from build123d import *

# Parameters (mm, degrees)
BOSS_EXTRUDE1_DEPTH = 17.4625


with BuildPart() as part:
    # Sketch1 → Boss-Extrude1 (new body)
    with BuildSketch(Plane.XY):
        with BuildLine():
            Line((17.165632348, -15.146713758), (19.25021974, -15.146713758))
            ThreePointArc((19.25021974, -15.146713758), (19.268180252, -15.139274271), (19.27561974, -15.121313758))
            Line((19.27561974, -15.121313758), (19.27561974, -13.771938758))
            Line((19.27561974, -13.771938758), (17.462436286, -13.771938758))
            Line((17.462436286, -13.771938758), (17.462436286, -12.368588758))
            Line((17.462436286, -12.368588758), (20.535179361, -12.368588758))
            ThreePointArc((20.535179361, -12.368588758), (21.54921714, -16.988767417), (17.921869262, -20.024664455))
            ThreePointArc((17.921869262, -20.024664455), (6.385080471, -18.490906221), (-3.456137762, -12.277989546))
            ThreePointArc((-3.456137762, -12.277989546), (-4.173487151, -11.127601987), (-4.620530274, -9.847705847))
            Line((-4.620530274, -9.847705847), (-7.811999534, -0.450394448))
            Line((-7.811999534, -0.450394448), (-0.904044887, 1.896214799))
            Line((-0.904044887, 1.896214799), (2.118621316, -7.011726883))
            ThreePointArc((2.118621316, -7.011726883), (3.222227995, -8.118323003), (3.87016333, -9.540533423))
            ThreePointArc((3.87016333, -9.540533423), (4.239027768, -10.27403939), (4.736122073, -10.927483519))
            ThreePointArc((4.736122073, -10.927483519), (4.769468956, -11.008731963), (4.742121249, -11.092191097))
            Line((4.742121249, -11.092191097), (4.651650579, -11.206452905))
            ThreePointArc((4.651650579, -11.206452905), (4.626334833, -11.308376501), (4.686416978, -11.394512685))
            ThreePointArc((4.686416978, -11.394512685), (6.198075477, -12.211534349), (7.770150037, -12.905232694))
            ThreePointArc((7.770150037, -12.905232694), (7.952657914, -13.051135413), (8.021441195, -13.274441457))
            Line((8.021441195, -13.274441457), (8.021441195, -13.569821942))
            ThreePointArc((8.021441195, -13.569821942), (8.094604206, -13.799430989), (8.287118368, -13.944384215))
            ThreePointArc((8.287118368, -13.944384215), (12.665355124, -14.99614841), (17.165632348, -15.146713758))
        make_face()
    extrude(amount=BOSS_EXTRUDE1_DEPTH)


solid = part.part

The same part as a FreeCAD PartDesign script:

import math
import FreeCAD as App
import Part
import Sketcher

V = App.Vector
Q = App.Units.Quantity

doc = App.newDocument("Part")
body = doc.addObject("PartDesign::Body", "Body")

# Sketch on XY plane
sketch1 = body.newObject("Sketcher::SketchObject", "Sketch")
sketch1.AttachmentSupport = (doc.getObject("XY_Plane"), [""])
sketch1.MapMode = "FlatFace"
sketch1.addGeometry([
    Part.LineSegment(V(19.25022, -15.146714, 0), V(17.165632, -15.146714, 0)),  # 0
    Part.ArcOfCircle(Part.Circle(V(15.657171, 7.096692, 0), V(0, 0, 1), 22.294496), math.radians(-109.303813), math.radians(-86.120362)),  # 1
    Part.ArcOfCircle(Part.Circle(V(8.418316, -13.569822, 0), V(0, 0, 1), 0.396875), math.radians(180), math.radians(250.696187)),  # 2
    Part.LineSegment(V(8.021441, -13.569822, 0), V(8.021441, -13.274441, 0)),  # 3
    Part.ArcOfCircle(Part.Circle(V(7.624566, -13.274441, 0), V(0, 0, 1), 0.396875), math.radians(0), math.radians(68.480034)),  # 4
    Part.ArcOfCircle(Part.Circle(V(15.65717, 7.096692, 0), V(0, 0, 1), 21.500746), math.radians(-120.680477), math.radians(-111.519966)),  # 5
    Part.ArcOfCircle(Part.Circle(V(4.751219, -11.285289, 0), V(0, 0, 1), 0.127), math.radians(141.628383), math.radians(239.319523)),  # 6
    Part.LineSegment(V(4.651651, -11.206453, 0), V(4.742121, -11.092191, 0)),  # 7
    Part.ArcOfCircle(Part.Circle(V(4.642553, -11.013355, 0), V(0, 0, 1), 0.127), math.radians(-38.371618), math.radians(42.543564)),  # 8
    Part.ArcOfCircle(Part.Circle(V(8.021441, -7.912445, 0), V(0, 0, 1), 4.459123), math.radians(-158.585396), math.radians(-137.456437)),  # 9
    Part.ArcOfCircle(Part.Circle(V(-0.400174, -10.627328, 0), V(0, 0, 1), 4.406461), math.radians(14.278575), math.radians(55.137147)),  # 10
    Part.LineSegment(V(2.118621, -7.011727, 0), V(-0.904045, 1.896215, 0)),  # 11
    Part.LineSegment(V(-0.904045, 1.896215, 0), V(-7.812, -0.450394, 0)),  # 12
    Part.LineSegment(V(-7.812, -0.450394, 0), V(-4.62053, -9.847706, 0)),  # 13
    Part.ArcOfCircle(Part.Circle(V(1.35667, -8.478005, 0), V(0, 0, 1), 6.132129), math.radians(-167.093263), math.radians(-141.706903)),  # 14
    Part.ArcOfCircle(Part.Circle(V(15.657171, 7.096692, 0), V(0, 0, 1), 27.215746), math.radians(-134.610908), math.radians(-85.226738)),  # 15
    Part.ArcOfCircle(Part.Circle(V(17.231651, -15.515018, 0), V(0, 0, 1), 4.562161), math.radians(-81.298197), math.radians(43.604744)),  # 16
    Part.LineSegment(V(20.535179, -12.368589, 0), V(17.462436, -12.368589, 0)),  # 17
    Part.LineSegment(V(17.462436, -12.368589, 0), V(17.462436, -13.771939, 0)),  # 18
    Part.LineSegment(V(17.462436, -13.771939, 0), V(19.27562, -13.771939, 0)),  # 19
    Part.LineSegment(V(19.27562, -13.771939, 0), V(19.27562, -15.121314, 0)),  # 20
    Part.ArcOfCircle(Part.Circle(V(19.25022, -15.121314, 0), V(0, 0, 1), 0.0254), math.radians(-90.000002), math.radians(0.000002)),  # 21
], False)
sketch1.addConstraint([
    Sketcher.Constraint("Coincident", 0, 2, 1, 2),
    Sketcher.Constraint("Coincident", 1, 1, 2, 2),
    Sketcher.Constraint("Coincident", 2, 1, 3, 1),
    Sketcher.Constraint("Coincident", 3, 2, 4, 1),
    Sketcher.Constraint("Coincident", 4, 2, 5, 2),
    Sketcher.Constraint("Coincident", 5, 1, 6, 2),
    Sketcher.Constraint("Coincident", 6, 1, 7, 1),
    Sketcher.Constraint("Coincident", 7, 2, 8, 1),
    Sketcher.Constraint("Coincident", 8, 2, 9, 2),
    Sketcher.Constraint("Coincident", 9, 1, 10, 1),
    Sketcher.Constraint("Coincident", 10, 2, 11, 1),
    Sketcher.Constraint("Coincident", 11, 2, 12, 1),
    Sketcher.Constraint("Coincident", 12, 2, 13, 1),
    Sketcher.Constraint("Coincident", 13, 2, 14, 1),
    Sketcher.Constraint("Coincident", 14, 2, 15, 1),
    Sketcher.Constraint("Coincident", 15, 2, 16, 1),
    Sketcher.Constraint("Coincident", 16, 2, 17, 1),
    Sketcher.Constraint("Coincident", 17, 2, 18, 1),
    Sketcher.Constraint("Coincident", 18, 2, 19, 1),
    Sketcher.Constraint("Coincident", 19, 2, 20, 1),
    Sketcher.Constraint("Coincident", 20, 2, 21, 2),
    Sketcher.Constraint("Coincident", 21, 1, 0, 1),
    Sketcher.Constraint("Horizontal", 0),
    Sketcher.Constraint("Vertical", 3),
    Sketcher.Constraint("Horizontal", 17),
    Sketcher.Constraint("Vertical", 18),
    Sketcher.Constraint("Horizontal", 19),
    Sketcher.Constraint("Vertical", 20),
    Sketcher.Constraint("Coincident", 5, 3, 1, 3),
    Sketcher.Constraint("Coincident", 15, 3, 1, 3),
    Sketcher.Constraint("Radius", 2, Q("0.015625 in")),
    Sketcher.Constraint("Radius", 4, Q("0.015625 in")),
    Sketcher.Constraint("Radius", 6, Q("0.005 in")),
    Sketcher.Constraint("Radius", 8, Q("0.005 in")),
    Sketcher.Constraint("Radius", 21, Q("0.001 in")),
    Sketcher.Constraint("Radius", 10, Q("4.406461 mm")),
    Sketcher.Constraint("Radius", 14, Q("6.132129 mm")),
    Sketcher.Constraint("Radius", 16, Q("4.562161 mm")),
    Sketcher.Constraint("DistanceX", 4, 3, 9, 3, Q("0.015625 in")),
    Sketcher.Constraint("DistanceY", 0, 2, 16, 2, Q("0.109375 in")),
    Sketcher.Constraint("DistanceY", 0, 2, 20, 2, Q("0.001 in")),
    Sketcher.Constraint("DistanceX", 21, 1, 20, 2, Q("0.001 in")),
    Sketcher.Constraint("Radius", 1, Q("22.294496 mm")),
    Sketcher.Constraint("Radius", 5, Q("21.500746 mm")),
    Sketcher.Constraint("Radius", 9, Q("4.459123 mm")),
    Sketcher.Constraint("Radius", 15, Q("27.215746 mm")),
    Sketcher.Constraint("DistanceY", 6, 3, 5, 3, Q("0.7237001 in")),
    Sketcher.Constraint("DistanceY", 16, 3, 21, 3, Q("0.0155002 in")),
    Sketcher.Constraint("DistanceY", 5, 1, 6, 3, Q("0.0043001 in")),
    Sketcher.Constraint("DistanceX", 5, 1, 3, 2, Q("0.1313002 in")),
    Sketcher.Constraint("DistanceY", 3, 1, 3, 2, Q("0.29538 mm")),
    Sketcher.Constraint("DistanceY", 18, 2, 18, 1, Q("1.40335 mm")),
    Sketcher.Constraint("DistanceX", 12, 2, -1, 1, Q("7.812 mm")),
    Sketcher.Constraint("DistanceX", 14, 3, 15, 3, Q("14.300501 mm")),
    Sketcher.Constraint("DistanceX", 8, 3, 16, 3, Q("12.589098 mm")),
    Sketcher.Constraint("DistanceX", 6, 3, 21, 3, Q("14.499001 mm")),
    Sketcher.Constraint("DistanceX", 6, 3, 1, 1, Q("3.5359 mm")),
    Sketcher.Constraint("DistanceY", 6, 1, 8, 3, Q("0.193098 mm")),
    Sketcher.Constraint("DistanceX", 6, 1, 4, 2, Q("3.118499 mm")),
    Sketcher.Constraint("DistanceY", 6, 3, 7, 2, Q("0.193098 mm")),
    Sketcher.Constraint("DistanceX", 8, 2, 7, 2, Q("0.005999 mm")),
    Sketcher.Constraint("DistanceY", 10, 3, 10, 2, Q("3.615601 mm")),
    Sketcher.Constraint("DistanceX", 10, 2, 8, 2, Q("2.617501 mm")),
    Sketcher.Constraint("DistanceX", 13, 2, 14, 3, Q("5.9772 mm")),
    Sketcher.Constraint("DistanceX", 14, 2, 9, 1, Q("7.326301 mm")),
    Sketcher.Constraint("Distance", 7, Q("0.145742 mm")),
    Sketcher.Constraint("Distance", 13, Q("9.924462 mm")),
    Sketcher.Constraint("DistanceX", 0, 2, 0, 1, Q("2.084587 mm")),
    Sketcher.Constraint("DistanceX", 17, 2, 17, 1, Q("3.072743 mm")),
    Sketcher.Constraint("DistanceX", 19, 1, 19, 2, Q("1.813183 mm")),
    Sketcher.Constraint("DistanceX", -1, 1, 1, 3, Q("15.657171 mm")),
    Sketcher.Constraint("DistanceY", 2, 3, -1, 1, Q("13.569822 mm")),
    Sketcher.Constraint("DistanceY", 10, 3, -1, 1, Q("10.627328 mm")),
    Sketcher.Constraint("DistanceY", 2, 1, -1, 1, Q("13.569822 mm")),
    Sketcher.Constraint("DistanceY", 10, 2, 11, 2, Q("8.907942 mm")),
    Sketcher.Constraint("DistanceX", 11, 2, 9, 1, Q("4.774208 mm")),
])
pad1 = body.newObject("PartDesign::Pad", "Pad")
pad1.Profile = sketch1
pad1.Length = Q("0.6875 in")

doc.recompute()
